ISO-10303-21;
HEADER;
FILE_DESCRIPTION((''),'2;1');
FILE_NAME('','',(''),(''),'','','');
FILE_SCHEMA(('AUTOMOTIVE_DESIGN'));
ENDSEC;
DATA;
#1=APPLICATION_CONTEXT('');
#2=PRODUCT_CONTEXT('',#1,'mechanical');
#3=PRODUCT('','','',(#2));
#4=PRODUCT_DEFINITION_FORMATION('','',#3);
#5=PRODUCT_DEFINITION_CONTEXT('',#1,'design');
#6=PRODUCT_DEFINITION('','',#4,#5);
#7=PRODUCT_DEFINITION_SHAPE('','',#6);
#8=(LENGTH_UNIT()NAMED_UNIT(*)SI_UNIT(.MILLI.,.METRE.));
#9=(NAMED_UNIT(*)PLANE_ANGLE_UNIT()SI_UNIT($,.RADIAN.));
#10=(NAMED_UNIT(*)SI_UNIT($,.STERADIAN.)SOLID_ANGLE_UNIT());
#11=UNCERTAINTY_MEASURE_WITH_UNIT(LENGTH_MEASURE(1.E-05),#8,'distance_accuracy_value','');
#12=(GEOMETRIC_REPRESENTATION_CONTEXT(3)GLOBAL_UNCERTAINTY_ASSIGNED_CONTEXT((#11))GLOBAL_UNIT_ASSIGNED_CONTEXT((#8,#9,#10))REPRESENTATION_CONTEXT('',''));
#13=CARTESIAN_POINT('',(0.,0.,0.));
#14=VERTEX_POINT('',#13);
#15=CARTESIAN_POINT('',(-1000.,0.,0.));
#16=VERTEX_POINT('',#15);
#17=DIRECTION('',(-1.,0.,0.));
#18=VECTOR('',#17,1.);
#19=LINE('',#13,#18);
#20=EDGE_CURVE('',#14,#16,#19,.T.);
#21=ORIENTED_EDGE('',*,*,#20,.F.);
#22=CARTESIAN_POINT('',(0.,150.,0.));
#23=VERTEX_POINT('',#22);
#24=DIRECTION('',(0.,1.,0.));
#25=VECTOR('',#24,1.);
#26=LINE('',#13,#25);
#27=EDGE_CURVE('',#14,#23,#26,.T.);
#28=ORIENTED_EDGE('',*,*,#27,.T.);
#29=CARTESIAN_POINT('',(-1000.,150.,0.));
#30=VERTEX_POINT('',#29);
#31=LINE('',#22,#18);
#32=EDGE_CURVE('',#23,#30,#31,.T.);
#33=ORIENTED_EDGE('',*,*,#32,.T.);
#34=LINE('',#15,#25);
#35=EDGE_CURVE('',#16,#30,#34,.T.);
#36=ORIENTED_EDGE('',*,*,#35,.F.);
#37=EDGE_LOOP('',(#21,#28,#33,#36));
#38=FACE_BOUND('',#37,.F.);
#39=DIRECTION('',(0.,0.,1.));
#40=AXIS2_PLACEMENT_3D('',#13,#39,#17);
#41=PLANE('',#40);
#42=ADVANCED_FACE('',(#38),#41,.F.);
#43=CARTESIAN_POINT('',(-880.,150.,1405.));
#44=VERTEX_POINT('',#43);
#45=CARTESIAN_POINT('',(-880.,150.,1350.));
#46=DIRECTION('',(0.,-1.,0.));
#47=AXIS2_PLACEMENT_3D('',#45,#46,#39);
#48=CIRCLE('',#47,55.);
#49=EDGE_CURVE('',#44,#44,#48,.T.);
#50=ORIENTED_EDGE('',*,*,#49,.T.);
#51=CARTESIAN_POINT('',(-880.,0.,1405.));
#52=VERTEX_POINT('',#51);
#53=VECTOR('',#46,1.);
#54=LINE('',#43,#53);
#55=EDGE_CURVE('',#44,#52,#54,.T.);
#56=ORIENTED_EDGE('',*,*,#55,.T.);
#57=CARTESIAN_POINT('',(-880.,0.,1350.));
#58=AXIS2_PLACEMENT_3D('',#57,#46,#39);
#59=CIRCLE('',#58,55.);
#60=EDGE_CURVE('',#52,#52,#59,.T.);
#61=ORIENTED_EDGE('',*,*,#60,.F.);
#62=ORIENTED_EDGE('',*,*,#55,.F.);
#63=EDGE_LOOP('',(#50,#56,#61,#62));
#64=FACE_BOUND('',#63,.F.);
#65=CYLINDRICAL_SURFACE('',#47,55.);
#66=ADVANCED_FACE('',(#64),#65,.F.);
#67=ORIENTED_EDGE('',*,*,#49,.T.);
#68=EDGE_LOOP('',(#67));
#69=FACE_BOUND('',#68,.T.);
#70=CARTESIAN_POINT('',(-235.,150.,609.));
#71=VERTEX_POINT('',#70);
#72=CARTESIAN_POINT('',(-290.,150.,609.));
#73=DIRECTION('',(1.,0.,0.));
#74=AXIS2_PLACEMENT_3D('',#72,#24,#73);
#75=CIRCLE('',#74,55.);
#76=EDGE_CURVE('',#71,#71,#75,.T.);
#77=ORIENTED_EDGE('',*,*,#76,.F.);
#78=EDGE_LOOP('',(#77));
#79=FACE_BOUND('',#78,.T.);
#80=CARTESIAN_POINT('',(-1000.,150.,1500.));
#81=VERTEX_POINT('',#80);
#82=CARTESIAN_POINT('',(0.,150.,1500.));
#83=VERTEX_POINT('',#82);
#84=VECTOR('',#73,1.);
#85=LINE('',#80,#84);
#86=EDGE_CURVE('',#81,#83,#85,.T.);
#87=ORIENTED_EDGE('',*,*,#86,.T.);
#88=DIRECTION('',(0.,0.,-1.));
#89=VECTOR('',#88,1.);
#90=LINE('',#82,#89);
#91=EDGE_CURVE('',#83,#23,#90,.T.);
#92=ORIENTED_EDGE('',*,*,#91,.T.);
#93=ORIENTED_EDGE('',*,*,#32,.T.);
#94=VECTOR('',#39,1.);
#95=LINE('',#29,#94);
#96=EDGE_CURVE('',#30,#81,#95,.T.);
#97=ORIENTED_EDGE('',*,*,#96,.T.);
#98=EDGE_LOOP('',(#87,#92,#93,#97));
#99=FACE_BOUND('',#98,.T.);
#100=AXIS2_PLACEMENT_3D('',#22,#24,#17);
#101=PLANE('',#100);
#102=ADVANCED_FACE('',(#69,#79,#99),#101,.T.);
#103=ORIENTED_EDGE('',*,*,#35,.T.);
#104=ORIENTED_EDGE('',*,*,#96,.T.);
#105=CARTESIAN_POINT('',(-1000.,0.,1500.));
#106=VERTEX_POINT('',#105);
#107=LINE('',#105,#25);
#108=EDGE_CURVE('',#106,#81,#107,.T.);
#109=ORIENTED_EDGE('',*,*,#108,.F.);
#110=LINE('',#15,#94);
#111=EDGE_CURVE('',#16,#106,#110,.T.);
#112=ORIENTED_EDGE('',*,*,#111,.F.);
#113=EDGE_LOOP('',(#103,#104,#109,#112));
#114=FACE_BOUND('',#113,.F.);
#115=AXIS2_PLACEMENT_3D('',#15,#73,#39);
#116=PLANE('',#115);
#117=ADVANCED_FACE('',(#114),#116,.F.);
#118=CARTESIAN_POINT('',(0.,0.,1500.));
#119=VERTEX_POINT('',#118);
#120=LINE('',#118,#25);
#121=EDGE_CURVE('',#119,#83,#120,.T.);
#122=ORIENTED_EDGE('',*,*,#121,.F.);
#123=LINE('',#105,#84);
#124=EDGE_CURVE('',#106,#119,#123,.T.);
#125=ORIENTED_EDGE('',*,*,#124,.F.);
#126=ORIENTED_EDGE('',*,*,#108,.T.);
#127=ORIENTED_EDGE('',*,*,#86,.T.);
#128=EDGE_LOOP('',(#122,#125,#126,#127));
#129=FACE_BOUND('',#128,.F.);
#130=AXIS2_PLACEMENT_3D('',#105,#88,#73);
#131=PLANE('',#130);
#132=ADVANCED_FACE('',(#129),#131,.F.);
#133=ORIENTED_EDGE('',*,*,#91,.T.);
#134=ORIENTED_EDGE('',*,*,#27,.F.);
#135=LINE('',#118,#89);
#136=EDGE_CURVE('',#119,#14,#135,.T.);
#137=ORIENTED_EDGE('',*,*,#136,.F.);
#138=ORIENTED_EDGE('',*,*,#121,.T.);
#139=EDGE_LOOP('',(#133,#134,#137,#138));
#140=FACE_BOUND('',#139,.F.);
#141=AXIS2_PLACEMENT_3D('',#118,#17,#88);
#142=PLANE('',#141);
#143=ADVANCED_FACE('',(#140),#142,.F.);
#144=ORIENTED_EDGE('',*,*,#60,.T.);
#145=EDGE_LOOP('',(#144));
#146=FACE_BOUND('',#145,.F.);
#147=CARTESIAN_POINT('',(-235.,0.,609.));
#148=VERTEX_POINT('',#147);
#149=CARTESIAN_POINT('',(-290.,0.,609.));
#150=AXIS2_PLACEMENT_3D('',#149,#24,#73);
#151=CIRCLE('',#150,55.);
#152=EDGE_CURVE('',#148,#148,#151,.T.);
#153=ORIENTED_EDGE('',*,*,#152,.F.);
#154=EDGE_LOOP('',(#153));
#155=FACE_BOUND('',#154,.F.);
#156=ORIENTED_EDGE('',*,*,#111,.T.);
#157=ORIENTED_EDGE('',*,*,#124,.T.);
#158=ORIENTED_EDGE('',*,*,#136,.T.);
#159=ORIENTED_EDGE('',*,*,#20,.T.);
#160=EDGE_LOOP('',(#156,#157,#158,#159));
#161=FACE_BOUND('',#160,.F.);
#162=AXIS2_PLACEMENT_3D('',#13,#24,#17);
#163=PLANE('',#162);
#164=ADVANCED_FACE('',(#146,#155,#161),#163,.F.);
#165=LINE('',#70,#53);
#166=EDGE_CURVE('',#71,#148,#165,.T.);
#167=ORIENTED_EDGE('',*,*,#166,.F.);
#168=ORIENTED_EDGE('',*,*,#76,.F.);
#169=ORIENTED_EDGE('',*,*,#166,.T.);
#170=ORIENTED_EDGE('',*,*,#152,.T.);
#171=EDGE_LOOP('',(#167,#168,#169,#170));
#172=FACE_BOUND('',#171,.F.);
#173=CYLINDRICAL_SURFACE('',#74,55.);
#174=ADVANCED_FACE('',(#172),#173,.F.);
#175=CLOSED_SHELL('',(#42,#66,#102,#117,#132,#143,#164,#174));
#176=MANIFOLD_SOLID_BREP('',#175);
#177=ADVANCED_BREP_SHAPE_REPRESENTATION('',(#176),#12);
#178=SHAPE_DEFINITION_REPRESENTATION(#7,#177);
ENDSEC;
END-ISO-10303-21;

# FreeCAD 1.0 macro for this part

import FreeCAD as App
import Part
import Sketcher

V = App.Vector
Q = App.Units.Quantity

doc = App.newDocument("Part")
body = doc.addObject("PartDesign::Body", "Body")

sketch1 = body.newObject("Sketcher::SketchObject", "Sketch")
sketch1.AttachmentSupport = (doc.getObject("XZ_Plane"), [""])
sketch1.MapMode = "FlatFace"
sketch1.addGeometry([
    Part.LineSegment(V(0, 1500, 0), V(0, 0, 0)),
    Part.LineSegment(V(0, 0, 0), V(-1000, 0, 0)),
    Part.LineSegment(V(-1000, 0, 0), V(-1000, 1500, 0)),
    Part.LineSegment(V(-1000, 1500, 0), V(0, 1500, 0)),
], False)
sketch1.addConstraint([
    Sketcher.Constraint("Coincident", 0, 2, 1, 1),
    Sketcher.Constraint("Coincident", 1, 2, 2, 1),
    Sketcher.Constraint("Coincident", 2, 2, 3, 1),
    Sketcher.Constraint("Coincident", 3, 2, 0, 1),
    Sketcher.Constraint("Vertical", 0),
    Sketcher.Constraint("Horizontal", 1),
    Sketcher.Constraint("Vertical", 2),
    Sketcher.Constraint("Horizontal", 3),
    Sketcher.Constraint("Coincident", 0, 2, -1, 1),
    Sketcher.Constraint("DistanceX", 1, 2, 1, 1, Q("1000 mm")),
    Sketcher.Constraint("DistanceY", 0, 2, 0, 1, Q("1500 mm")),
])
pad1 = body.newObject("PartDesign::Pad", "Pad")
pad1.Profile = sketch1
pad1.Length = 150
pad1.Reversed = True

sketch2 = body.newObject("Sketcher::SketchObject", "Sketch001")
sketch2.AttachmentSupport = (doc.getObject("XZ_Plane"), [""])
sketch2.MapMode = "FlatFace"
sketch2.AttachmentOffset = App.Placement(V(0, 0, -150), App.Rotation())
sketch2.addGeometry(Part.Circle(V(-290, 609, 0), V(0, 0, 1), 55), False)
sketch2.addConstraint([
    Sketcher.Constraint("Diameter", 0, Q("110 mm")),
    Sketcher.Constraint("DistanceX", 0, 3, -1, 1, Q("290 mm")),
    Sketcher.Constraint("DistanceY", -1, 1, 0, 3, Q("609 mm")),
])
pocket1 = body.newObject("PartDesign::Pocket", "Pocket")
pocket1.Profile = sketch2
pocket1.Type = "ThroughAll"
pocket1.Reversed = True

sketch3 = body.newObject("Sketcher::SketchObject", "Sketch002")
sketch3.AttachmentSupport = (doc.getObject("XZ_Plane"), [""])
sketch3.MapMode = "FlatFace"
sketch3.AttachmentOffset = App.Placement(V(0, 0, -150), App.Rotation())
sketch3.addGeometry(Part.Circle(V(-880, 1350, 0), V(0, 0, 1), 55), False)
sketch3.addConstraint([
    Sketcher.Constraint("Diameter", 0, Q("110 mm")),
    Sketcher.Constraint("DistanceX", 0, 3, -1, 1, Q("880 mm")),
    Sketcher.Constraint("DistanceY", -1, 1, 0, 3, Q("1350 mm")),
])
doc.recompute()
hole = body.newObject("PartDesign::Hole", "Hole")
hole.Profile = sketch3
hole.ThreadType = "None"
hole.Diameter = 110
hole.DepthType = "ThroughAll"
hole.Reversed = True

doc.recompute()
